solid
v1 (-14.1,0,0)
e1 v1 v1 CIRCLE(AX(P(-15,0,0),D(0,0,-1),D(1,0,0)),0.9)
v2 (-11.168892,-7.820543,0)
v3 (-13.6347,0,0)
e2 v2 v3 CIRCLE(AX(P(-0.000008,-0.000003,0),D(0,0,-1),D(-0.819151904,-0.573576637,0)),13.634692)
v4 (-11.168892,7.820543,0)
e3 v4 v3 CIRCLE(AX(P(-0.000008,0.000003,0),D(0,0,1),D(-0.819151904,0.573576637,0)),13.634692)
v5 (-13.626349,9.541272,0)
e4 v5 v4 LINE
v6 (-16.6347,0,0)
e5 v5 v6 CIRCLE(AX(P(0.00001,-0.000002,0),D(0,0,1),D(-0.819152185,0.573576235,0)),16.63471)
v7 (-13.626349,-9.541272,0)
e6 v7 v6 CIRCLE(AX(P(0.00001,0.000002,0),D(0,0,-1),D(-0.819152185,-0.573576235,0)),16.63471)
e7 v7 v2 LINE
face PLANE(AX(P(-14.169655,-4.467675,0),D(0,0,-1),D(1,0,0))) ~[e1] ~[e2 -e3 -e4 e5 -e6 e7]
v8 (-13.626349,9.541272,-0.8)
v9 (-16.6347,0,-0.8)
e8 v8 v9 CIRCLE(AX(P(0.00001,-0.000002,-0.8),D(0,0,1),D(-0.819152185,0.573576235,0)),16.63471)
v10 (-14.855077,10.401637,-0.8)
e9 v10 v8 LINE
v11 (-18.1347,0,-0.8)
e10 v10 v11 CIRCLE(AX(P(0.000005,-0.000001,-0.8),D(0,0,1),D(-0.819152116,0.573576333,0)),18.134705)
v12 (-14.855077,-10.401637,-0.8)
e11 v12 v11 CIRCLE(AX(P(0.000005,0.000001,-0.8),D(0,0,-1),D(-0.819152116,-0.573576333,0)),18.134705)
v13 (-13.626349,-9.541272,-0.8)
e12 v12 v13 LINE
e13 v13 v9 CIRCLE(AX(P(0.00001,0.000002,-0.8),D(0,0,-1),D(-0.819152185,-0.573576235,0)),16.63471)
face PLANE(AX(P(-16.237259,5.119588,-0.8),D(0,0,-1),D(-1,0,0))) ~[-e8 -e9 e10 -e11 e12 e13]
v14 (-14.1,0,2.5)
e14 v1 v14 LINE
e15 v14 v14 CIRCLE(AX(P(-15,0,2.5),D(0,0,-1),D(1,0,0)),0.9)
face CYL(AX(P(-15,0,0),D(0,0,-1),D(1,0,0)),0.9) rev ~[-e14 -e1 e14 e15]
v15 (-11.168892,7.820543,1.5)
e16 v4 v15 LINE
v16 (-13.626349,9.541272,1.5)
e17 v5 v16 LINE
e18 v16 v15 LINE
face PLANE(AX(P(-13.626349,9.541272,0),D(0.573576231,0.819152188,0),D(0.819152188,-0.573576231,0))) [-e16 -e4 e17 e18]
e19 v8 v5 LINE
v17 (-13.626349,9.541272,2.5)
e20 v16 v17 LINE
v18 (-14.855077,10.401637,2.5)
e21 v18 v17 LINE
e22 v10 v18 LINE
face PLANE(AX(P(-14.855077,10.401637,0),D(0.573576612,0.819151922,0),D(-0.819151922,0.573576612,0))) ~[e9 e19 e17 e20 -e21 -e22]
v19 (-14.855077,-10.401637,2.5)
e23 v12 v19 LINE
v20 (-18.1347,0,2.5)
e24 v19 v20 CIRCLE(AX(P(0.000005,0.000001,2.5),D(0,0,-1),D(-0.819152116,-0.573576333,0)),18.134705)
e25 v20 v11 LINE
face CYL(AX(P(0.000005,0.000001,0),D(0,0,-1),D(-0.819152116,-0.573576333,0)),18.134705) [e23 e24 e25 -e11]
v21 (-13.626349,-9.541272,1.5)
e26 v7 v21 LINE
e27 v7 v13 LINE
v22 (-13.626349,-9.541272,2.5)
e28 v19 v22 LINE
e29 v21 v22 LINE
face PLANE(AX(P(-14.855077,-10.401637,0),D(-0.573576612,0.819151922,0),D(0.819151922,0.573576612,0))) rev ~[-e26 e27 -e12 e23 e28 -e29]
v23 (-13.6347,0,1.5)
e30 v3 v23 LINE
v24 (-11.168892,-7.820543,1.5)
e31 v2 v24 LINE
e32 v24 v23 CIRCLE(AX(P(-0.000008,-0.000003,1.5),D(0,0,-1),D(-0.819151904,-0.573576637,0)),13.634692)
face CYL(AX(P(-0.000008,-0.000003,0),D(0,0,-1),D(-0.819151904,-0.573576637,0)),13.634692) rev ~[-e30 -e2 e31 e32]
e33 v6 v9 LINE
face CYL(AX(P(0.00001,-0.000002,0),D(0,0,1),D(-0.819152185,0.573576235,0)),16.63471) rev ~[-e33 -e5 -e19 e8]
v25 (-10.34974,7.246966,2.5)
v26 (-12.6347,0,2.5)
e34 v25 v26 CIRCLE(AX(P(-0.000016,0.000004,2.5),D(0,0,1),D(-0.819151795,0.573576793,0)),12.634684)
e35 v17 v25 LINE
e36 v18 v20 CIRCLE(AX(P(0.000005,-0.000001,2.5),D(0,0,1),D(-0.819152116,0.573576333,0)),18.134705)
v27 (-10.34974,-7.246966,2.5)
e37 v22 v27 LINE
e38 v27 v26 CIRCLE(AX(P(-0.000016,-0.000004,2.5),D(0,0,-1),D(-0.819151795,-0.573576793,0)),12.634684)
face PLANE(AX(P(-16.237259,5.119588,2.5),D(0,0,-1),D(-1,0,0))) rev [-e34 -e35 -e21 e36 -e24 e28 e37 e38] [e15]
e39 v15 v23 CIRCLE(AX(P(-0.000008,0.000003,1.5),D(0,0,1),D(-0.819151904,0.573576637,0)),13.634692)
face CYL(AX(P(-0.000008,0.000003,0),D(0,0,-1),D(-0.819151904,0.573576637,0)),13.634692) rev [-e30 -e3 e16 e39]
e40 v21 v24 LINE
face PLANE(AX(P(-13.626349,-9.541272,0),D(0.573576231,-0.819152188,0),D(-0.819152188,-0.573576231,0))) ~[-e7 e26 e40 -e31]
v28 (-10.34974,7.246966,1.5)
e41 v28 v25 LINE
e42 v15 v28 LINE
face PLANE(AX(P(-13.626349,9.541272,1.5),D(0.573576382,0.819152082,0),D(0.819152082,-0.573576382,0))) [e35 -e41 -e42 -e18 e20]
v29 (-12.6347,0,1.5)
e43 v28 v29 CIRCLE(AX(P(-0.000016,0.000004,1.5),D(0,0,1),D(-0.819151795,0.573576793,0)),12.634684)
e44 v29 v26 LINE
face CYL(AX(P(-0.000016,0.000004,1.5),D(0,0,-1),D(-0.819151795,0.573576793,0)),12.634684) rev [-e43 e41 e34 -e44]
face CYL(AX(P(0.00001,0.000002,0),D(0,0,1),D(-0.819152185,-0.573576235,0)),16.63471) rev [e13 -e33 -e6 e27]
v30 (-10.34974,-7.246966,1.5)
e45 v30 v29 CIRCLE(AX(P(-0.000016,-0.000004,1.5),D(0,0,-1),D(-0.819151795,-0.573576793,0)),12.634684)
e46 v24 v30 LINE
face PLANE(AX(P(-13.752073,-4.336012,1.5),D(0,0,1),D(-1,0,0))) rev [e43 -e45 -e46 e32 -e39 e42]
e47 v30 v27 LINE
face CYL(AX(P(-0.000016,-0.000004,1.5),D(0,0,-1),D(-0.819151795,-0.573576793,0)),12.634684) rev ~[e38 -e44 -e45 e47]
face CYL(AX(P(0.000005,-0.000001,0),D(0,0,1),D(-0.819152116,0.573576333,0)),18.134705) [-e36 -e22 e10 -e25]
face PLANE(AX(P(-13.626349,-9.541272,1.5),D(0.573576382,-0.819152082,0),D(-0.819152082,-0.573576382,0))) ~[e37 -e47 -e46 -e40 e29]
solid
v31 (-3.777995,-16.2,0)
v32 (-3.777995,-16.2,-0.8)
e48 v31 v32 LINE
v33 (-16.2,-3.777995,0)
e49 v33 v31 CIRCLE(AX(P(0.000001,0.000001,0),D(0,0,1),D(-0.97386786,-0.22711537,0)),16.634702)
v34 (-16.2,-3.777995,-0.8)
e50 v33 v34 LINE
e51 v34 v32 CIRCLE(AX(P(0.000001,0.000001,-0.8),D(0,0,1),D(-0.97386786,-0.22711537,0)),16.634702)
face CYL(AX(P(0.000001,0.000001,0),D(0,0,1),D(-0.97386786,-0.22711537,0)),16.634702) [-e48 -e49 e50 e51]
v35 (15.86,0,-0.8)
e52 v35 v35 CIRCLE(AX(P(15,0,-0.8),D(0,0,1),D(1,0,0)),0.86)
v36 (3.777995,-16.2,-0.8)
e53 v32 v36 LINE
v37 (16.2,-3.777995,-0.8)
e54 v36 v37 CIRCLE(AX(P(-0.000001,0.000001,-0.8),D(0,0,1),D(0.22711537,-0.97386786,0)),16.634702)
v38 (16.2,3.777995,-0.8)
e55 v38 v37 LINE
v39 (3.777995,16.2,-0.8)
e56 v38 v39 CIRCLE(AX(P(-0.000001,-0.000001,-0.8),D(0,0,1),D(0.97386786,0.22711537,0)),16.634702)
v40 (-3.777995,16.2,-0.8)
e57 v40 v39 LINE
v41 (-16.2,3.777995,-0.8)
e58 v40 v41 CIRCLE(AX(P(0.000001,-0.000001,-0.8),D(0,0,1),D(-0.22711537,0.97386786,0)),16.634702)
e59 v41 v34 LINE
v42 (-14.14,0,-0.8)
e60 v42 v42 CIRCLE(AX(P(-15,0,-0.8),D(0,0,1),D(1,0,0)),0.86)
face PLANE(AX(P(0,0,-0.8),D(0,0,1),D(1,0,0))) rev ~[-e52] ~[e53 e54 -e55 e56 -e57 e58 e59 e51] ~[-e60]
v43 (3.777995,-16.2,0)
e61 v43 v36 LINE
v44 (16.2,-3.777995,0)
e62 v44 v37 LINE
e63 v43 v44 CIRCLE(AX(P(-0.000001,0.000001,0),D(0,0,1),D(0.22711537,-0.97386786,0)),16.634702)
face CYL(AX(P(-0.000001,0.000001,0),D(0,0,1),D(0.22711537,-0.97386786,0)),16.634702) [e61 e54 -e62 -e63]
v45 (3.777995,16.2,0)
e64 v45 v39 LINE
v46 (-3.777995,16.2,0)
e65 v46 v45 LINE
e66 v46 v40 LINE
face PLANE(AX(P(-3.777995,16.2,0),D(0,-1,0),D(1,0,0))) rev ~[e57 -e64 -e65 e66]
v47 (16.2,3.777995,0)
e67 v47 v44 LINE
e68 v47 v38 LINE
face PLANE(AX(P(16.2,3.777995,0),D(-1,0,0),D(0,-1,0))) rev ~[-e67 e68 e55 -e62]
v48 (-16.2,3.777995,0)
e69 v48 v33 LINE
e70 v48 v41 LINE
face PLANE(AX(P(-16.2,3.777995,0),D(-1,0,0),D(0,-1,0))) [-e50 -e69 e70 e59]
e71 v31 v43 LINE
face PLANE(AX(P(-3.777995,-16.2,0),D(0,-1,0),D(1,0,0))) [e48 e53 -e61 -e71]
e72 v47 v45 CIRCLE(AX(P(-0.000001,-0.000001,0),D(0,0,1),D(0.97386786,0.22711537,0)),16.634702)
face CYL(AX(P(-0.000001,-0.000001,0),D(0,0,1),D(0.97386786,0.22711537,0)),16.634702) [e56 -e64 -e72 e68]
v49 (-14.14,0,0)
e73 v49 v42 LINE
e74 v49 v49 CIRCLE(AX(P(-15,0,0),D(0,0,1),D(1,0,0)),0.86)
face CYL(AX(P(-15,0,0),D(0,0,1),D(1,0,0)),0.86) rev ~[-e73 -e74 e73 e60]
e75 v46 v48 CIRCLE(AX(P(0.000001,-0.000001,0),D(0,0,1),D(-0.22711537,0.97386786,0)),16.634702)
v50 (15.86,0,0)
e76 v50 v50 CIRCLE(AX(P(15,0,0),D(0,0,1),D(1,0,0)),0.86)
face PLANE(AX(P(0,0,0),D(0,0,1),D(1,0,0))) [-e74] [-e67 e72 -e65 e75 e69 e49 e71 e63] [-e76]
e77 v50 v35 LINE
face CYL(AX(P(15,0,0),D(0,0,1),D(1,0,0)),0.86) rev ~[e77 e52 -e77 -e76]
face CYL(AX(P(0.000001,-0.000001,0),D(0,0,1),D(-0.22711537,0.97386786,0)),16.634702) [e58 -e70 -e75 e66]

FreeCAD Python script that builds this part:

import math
import FreeCAD as App
import Part
import Sketcher
from FreeCAD import Vector
Q = App.Units.Quantity

doc = App.newDocument("Part")
body = doc.addObject("PartDesign::Body", "Body")

# Sketch on XY plane
sketch1 = body.newObject("Sketcher::SketchObject", "Sketch")
sketch1.AttachmentSupport = (doc.getObject("XY_Plane"), [""])
sketch1.MapMode = "FlatFace"
sketch1.addGeometry(Part.ArcOfCircle(Part.Circle(Vector(0, 0, 0), Vector(0, 0, 1), 16.6), math.radians(-167), math.radians(-103)), False)
sketch1.addGeometry(Part.LineSegment(Vector(-3.8, -16.2, 0), Vector(3.8, -16.2, 0)), False)
sketch1.addGeometry(Part.ArcOfCircle(Part.Circle(Vector(0, 0, 0), Vector(0, 0, 1), 16.6), math.radians(-77), math.radians(-13)), False)
sketch1.addGeometry(Part.LineSegment(Vector(16.2, -3.8, 0), Vector(16.2, 3.8, 0)), False)
sketch1.addGeometry(Part.ArcOfCircle(Part.Circle(Vector(0, 0, 0), Vector(0, 0, 1), 16.6), math.radians(13), math.radians(77)), False)
sketch1.addGeometry(Part.LineSegment(Vector(3.8, 16.2, 0), Vector(-3.8, 16.2, 0)), False)
sketch1.addGeometry(Part.ArcOfCircle(Part.Circle(Vector(0, 0, 0), Vector(0, 0, 1), 16.6), math.radians(103), math.radians(167)), False)
sketch1.addGeometry(Part.LineSegment(Vector(-16.2, 3.8, 0), Vector(-16.2, -3.8, 0)), False)
sketch1.addGeometry(Part.Circle(Vector(-15, 0, 0), Vector(0, 0, 1), 0.9), False)
sketch1.addGeometry(Part.Circle(Vector(15, 0, 0), Vector(0, 0, 1), 0.9), False)
sketch1.addConstraint(Sketcher.Constraint("Coincident", 0, 2, 1, 1))
sketch1.addConstraint(Sketcher.Constraint("Coincident", 1, 2, 2, 1))
sketch1.addConstraint(Sketcher.Constraint("Coincident", 2, 2, 3, 1))
sketch1.addConstraint(Sketcher.Constraint("Coincident", 3, 2, 4, 1))
sketch1.addConstraint(Sketcher.Constraint("Coincident", 4, 2, 5, 1))
sketch1.addConstraint(Sketcher.Constraint("Coincident", 5, 2, 6, 1))
sketch1.addConstraint(Sketcher.Constraint("Coincident", 6, 2, 7, 1))
sketch1.addConstraint(Sketcher.Constraint("Coincident", 7, 2, 0, 1))
sketch1.addConstraint(Sketcher.Constraint("Horizontal", 1))
sketch1.addConstraint(Sketcher.Constraint("Vertical", 3))
sketch1.addConstraint(Sketcher.Constraint("Horizontal", 5))
sketch1.addConstraint(Sketcher.Constraint("Vertical", 7))
sketch1.addConstraint(Sketcher.Constraint("Coincident", 0, 3, -1, 1))
sketch1.addConstraint(Sketcher.Constraint("Coincident", 2, 3, -1, 1))
sketch1.addConstraint(Sketcher.Constraint("Coincident", 4, 3, -1, 1))
sketch1.addConstraint(Sketcher.Constraint("Coincident", 6, 3, -1, 1))
sketch1.addConstraint(Sketcher.Constraint("Equal", 0, 2))
sketch1.addConstraint(Sketcher.Constraint("Equal", 2, 4))
sketch1.addConstraint(Sketcher.Constraint("Equal", 4, 6))
sketch1.addConstraint(Sketcher.Constraint("Equal", 8, 9))
sketch1.addConstraint(Sketcher.Constraint("Symmetric", 8, 3, 9, 3, -1, 1))
sketch1.addConstraint(Sketcher.Constraint("PointOnObject", 8, 3, -1))
sketch1.addConstraint(Sketcher.Constraint("Horizontal", 3, 2, 6, 2))
sketch1.addConstraint(Sketcher.Constraint("Vertical", 1, 2, 4, 2))
sketch1.addConstraint(Sketcher.Constraint("Equal", 5, 3))
sketch1.addConstraint(Sketcher.Constraint("Diameter", 8, 1.72))
sketch1.addConstraint(Sketcher.Constraint("DistanceX", 8, 3, -1, 1, 15.0))
sketch1.addConstraint(Sketcher.Constraint("DistanceY", 0, 2, -1, 1, 16.2))
sketch1.addConstraint(Sketcher.Constraint("Radius", 0, 16.634702))
pad1 = body.newObject("PartDesign::Pad", "Pad")
pad1.Profile = sketch1
pad1.Length = 0.8
pad1.Reversed = True
body2 = doc.addObject("PartDesign::Body", "Body001")

# Sketch on XY plane
sketch2 = body2.newObject("Sketcher::SketchObject", "Sketch001")
sketch2.AttachmentSupport = (doc.getObject("XY_Plane001"), [""])
sketch2.MapMode = "FlatFace"
sketch2.addGeometry(Part.ArcOfCircle(Part.Circle(Vector(-0.000008, 0.000003, 0), Vector(0, 0, 1), 13.634692), math.radians(144.999986), math.radians(180.000011)), False)
sketch2.addGeometry(Part.LineSegment(Vector(-11.168892, 7.820543, 0), Vector(-13.626349, 9.541272, 0)), False)
sketch2.addGeometry(Part.ArcOfCircle(Part.Circle(Vector(0.00001, -0.000002, 0), Vector(0, 0, 1), 16.63471), math.radians(145.000014), math.radians(179.999991)), False)
sketch2.addGeometry(Part.LineSegment(Vector(-16.6347, 0, 0), Vector(-13.6347, 0, 0)), False)
sketch2.addConstraint(Sketcher.Constraint("Coincident", 0, 1, 1, 1))
sketch2.addConstraint(Sketcher.Constraint("Coincident", 1, 2, 2, 1))
sketch2.addConstraint(Sketcher.Constraint("Coincident", 2, 2, 3, 1))
sketch2.addConstraint(Sketcher.Constraint("Coincident", 3, 2, 0, 2))
sketch2.addConstraint(Sketcher.Constraint("Horizontal", 3))
sketch2.addConstraint(Sketcher.Constraint("Coincident", 0, 3, -1, 1))
sketch2.addConstraint(Sketcher.Constraint("PointOnObject", 2, 2, -1))
sketch2.addConstraint(Sketcher.Constraint("DistanceX", 3, 1, 3, 2, 3.0))
sketch2.addConstraint(Sketcher.Constraint("Distance", 1, 3.000001))
sketch2.addConstraint(Sketcher.Constraint("Radius", 0, 13.634692))
sketch2.addConstraint(Sketcher.Constraint("Radius", 2, 16.63471))
sketch2.addConstraint(Sketcher.Constraint("DistanceX", 0, 1, -1, 1, 11.168892))
sketch2.addConstraint(Sketcher.Constraint("DistanceX", 1, 2, -1, 1, 13.626349))
pad2 = body2.newObject("PartDesign::Pad", "Pad001")
pad2.Profile = sketch2
pad2.Length = 1.5
doc.recompute()

mirrored = body2.newObject("PartDesign::Mirrored", "Mirrored")
mirrored.Originals = [pad2]
mirrored.MirrorPlane = (doc.getObject("XZ_Plane001"), [""])
body2.Tip = mirrored

# Sketch on XY plane
sketch3 = body2.newObject("Sketcher::SketchObject", "Sketch002")
sketch3.AttachmentSupport = (doc.getObject("XY_Plane001"), [""])
sketch3.MapMode = "FlatFace"
sketch3.AttachmentOffset = App.Placement(Vector(0, 0, 1.5), App.Rotation())
sketch3.addGeometry(Part.ArcOfCircle(Part.Circle(Vector(0.00001, -0.000002, 0), Vector(0, 0, 1), 16.63471), math.radians(145.000014), math.radians(179.999991)), False)
sketch3.addGeometry(Part.LineSegment(Vector(-16.6347, 0, 0), Vector(-12.6347, 0, 0)), False)
sketch3.addGeometry(Part.ArcOfCircle(Part.Circle(Vector(-0.000016, 0.000004, 0), Vector(0, 0, 1), 12.634684), math.radians(144.999975), math.radians(180.000019)), False)
sketch3.addGeometry(Part.LineSegment(Vector(-10.34974, 7.246966, 0), Vector(-13.626349, 9.541272, 0)), False)
sketch3.addConstraint(Sketcher.Constraint("Coincident", 0, 2, 1, 1))
sketch3.addConstraint(Sketcher.Constraint("Coincident", 1, 2, 2, 2))
sketch3.addConstraint(Sketcher.Constraint("Coincident", 2, 1, 3, 1))
sketch3.addConstraint(Sketcher.Constraint("Coincident", 3, 2, 0, 1))
sketch3.addConstraint(Sketcher.Constraint("Horizontal", 1))
sketch3.addConstraint(Sketcher.Constraint("Symmetric", 0, 3, 2, 3, -1, 1))
sketch3.addConstraint(Sketcher.Constraint("PointOnObject", 0, 2, -1))
sketch3.addConstraint(Sketcher.Constraint("DistanceX", 1, 1, 1, 2, 4.0))
sketch3.addConstraint(Sketcher.Constraint("Angle", 3, Q("145.000004 deg")))
sketch3.addConstraint(Sketcher.Constraint("Distance", 3, 4.000001))
sketch3.addConstraint(Sketcher.Constraint("Radius", 0, 16.63471))
sketch3.addConstraint(Sketcher.Constraint("Radius", 2, 12.634684))
sketch3.addConstraint(Sketcher.Constraint("DistanceX", 2, 1, -1, 1, 10.34974))
pad3 = body2.newObject("PartDesign::Pad", "Pad002")
pad3.Profile = sketch3
pad3.Length = 1
doc.recompute()

mirrored2 = body2.newObject("PartDesign::Mirrored", "Mirrored001")
mirrored2.Originals = [pad3]
mirrored2.MirrorPlane = (doc.getObject("XZ_Plane001"), [""])
body2.Tip = mirrored2

# Sketch on XY plane
sketch4 = body2.newObject("Sketcher::SketchObject", "Sketch003")
sketch4.AttachmentSupport = (doc.getObject("XY_Plane001"), [""])
sketch4.MapMode = "FlatFace"
sketch4.addGeometry(Part.ArcOfCircle(Part.Circle(Vector(0, 0, 0), Vector(0, 0, 1), 18.1), math.radians(-180), math.radians(-145)), False)
sketch4.addGeometry(Part.LineSegment(Vector(-18.1, 0, 0), Vector(-16.6, 0, 0)), False)
sketch4.addGeometry(Part.ArcOfCircle(Part.Circle(Vector(0, 0, 0), Vector(0, 0, 1), 16.6), math.radians(-180), math.radians(-145)), False)
sketch4.addGeometry(Part.LineSegment(Vector(-13.6, -9.5, 0), Vector(-14.9, -10.4, 0)), False)
sketch4.addConstraint(Sketcher.Constraint("Coincident", 0, 1, 1, 1))
sketch4.addConstraint(Sketcher.Constraint("Coincident", 1, 2, 2, 1))
sketch4.addConstraint(Sketcher.Constraint("Coincident", 2, 2, 3, 1))
sketch4.addConstraint(Sketcher.Constraint("Coincident", 3, 2, 0, 2))
sketch4.addConstraint(Sketcher.Constraint("Horizontal", 1))
sketch4.addConstraint(Sketcher.Constraint("Coincident", 0, 3, -1, 1))
sketch4.addConstraint(Sketcher.Constraint("Coincident", 2, 3, 0, 3))
sketch4.addConstraint(Sketcher.Constraint("PointOnObject", 0, 1, -1))
sketch4.addConstraint(Sketcher.Constraint("Angle", 3, Q("-144.999988 deg")))
sketch4.addConstraint(Sketcher.Constraint("DistanceX", 1, 1, 1, 2, 1.5))
sketch4.addConstraint(Sketcher.Constraint("Radius", 2, 16.63471))
sketch4.addConstraint(Sketcher.Constraint("DistanceX", 2, 2, -1, 1, 13.626349))
pad4 = body2.newObject("PartDesign::Pad", "Pad003")
pad4.Profile = sketch4
pad4.Type = "TwoLengths"
pad4.Length = 0.8
pad4.Length2 = 2.5
pad4.Reversed = True
doc.recompute()

mirrored3 = body2.newObject("PartDesign::Mirrored", "Mirrored002")
mirrored3.Originals = [pad4]
mirrored3.MirrorPlane = (doc.getObject("XZ_Plane001"), [""])
body2.Tip = mirrored3

# Sketch on XY plane
sketch5 = body2.newObject("Sketcher::SketchObject", "Sketch004")
sketch5.AttachmentSupport = (doc.getObject("XY_Plane001"), [""])
sketch5.MapMode = "FlatFace"
sketch5.addGeometry(Part.Circle(Vector(-15, 0, 0), Vector(0, 0, 1), 0.9), False)
sketch5.addConstraint(Sketcher.Constraint("PointOnObject", 0, 3, -1))
sketch5.addConstraint(Sketcher.Constraint("Diameter", 0, 1.8))
sketch5.addConstraint(Sketcher.Constraint("DistanceX", 0, 3, -1, 1, 15.0))
pocket1 = body2.newObject("PartDesign::Pocket", "Pocket")
pocket1.Profile = sketch5
pocket1.Length = 25
pocket1.Reversed = True

doc.recompute()
